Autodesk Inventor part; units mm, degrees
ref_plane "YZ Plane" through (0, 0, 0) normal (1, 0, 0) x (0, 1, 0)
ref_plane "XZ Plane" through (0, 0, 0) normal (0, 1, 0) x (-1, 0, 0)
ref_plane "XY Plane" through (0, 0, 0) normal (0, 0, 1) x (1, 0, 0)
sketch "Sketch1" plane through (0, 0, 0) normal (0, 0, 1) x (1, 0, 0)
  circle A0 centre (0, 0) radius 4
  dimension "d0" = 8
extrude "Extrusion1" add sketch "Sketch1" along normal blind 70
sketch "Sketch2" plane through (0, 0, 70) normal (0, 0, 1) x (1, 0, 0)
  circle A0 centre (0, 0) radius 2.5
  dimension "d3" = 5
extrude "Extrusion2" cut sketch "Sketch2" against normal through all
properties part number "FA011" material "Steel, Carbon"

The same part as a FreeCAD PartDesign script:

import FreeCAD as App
import Part
import Sketcher
Q = App.Units.Quantity

doc = App.newDocument("Part")
params = doc.addObject("Spreadsheet::Sheet", "Params")
for row, (alias, value) in enumerate([
    ("sketch1_diameter", "8 mm"),
    ("pad1_length", "70 mm"),
    ("sketch2_diameter", "5 mm"),
], start=1):
    params.set(f"A{row}", alias)
    params.set(f"B{row}", "=" + value)
    params.setAlias(f"B{row}", alias)

body = doc.addObject("PartDesign::Body", "Body")

sketch1 = body.newObject("Sketcher::SketchObject", "Sketch")
sketch1.AttachmentSupport = (doc.getObject("XY_Plane"), [""])
sketch1.MapMode = "FlatFace"
sketch1.addGeometry(Part.Circle(App.Vector(0, 0, 0), App.Vector(0, 0, 1), 4), False)
sketch1.addConstraint([
    Sketcher.Constraint("Coincident", 0, 3, -1, 1),
    Sketcher.Constraint("Diameter", 0, Q("8 mm")),
])
sketch1.setExpression("Constraints[1]", "Params.sketch1_diameter")
pad1 = body.newObject("PartDesign::Pad", "Pad")
pad1.Profile = sketch1
pad1.setExpression("Length", "Params.pad1_length")

sketch2 = body.newObject("Sketcher::SketchObject", "Sketch001")
sketch2.AttachmentSupport = (doc.getObject("XY_Plane"), [""])
sketch2.MapMode = "FlatFace"
sketch2.AttachmentOffset = App.Placement(App.Vector(0, 0, 70), App.Rotation())
sketch2.addGeometry(Part.Circle(App.Vector(0, 0, 0), App.Vector(0, 0, 1), 2.5), False)
sketch2.addConstraint([
    Sketcher.Constraint("Coincident", 0, 3, -1, 1),
    Sketcher.Constraint("Diameter", 0, Q("5 mm")),
])
sketch2.setExpression("Constraints[1]", "Params.sketch2_diameter")
pocket1 = body.newObject("PartDesign::Pocket", "Pocket")
pocket1.Profile = sketch2
pocket1.Type = "ThroughAll"

doc.recompute()
